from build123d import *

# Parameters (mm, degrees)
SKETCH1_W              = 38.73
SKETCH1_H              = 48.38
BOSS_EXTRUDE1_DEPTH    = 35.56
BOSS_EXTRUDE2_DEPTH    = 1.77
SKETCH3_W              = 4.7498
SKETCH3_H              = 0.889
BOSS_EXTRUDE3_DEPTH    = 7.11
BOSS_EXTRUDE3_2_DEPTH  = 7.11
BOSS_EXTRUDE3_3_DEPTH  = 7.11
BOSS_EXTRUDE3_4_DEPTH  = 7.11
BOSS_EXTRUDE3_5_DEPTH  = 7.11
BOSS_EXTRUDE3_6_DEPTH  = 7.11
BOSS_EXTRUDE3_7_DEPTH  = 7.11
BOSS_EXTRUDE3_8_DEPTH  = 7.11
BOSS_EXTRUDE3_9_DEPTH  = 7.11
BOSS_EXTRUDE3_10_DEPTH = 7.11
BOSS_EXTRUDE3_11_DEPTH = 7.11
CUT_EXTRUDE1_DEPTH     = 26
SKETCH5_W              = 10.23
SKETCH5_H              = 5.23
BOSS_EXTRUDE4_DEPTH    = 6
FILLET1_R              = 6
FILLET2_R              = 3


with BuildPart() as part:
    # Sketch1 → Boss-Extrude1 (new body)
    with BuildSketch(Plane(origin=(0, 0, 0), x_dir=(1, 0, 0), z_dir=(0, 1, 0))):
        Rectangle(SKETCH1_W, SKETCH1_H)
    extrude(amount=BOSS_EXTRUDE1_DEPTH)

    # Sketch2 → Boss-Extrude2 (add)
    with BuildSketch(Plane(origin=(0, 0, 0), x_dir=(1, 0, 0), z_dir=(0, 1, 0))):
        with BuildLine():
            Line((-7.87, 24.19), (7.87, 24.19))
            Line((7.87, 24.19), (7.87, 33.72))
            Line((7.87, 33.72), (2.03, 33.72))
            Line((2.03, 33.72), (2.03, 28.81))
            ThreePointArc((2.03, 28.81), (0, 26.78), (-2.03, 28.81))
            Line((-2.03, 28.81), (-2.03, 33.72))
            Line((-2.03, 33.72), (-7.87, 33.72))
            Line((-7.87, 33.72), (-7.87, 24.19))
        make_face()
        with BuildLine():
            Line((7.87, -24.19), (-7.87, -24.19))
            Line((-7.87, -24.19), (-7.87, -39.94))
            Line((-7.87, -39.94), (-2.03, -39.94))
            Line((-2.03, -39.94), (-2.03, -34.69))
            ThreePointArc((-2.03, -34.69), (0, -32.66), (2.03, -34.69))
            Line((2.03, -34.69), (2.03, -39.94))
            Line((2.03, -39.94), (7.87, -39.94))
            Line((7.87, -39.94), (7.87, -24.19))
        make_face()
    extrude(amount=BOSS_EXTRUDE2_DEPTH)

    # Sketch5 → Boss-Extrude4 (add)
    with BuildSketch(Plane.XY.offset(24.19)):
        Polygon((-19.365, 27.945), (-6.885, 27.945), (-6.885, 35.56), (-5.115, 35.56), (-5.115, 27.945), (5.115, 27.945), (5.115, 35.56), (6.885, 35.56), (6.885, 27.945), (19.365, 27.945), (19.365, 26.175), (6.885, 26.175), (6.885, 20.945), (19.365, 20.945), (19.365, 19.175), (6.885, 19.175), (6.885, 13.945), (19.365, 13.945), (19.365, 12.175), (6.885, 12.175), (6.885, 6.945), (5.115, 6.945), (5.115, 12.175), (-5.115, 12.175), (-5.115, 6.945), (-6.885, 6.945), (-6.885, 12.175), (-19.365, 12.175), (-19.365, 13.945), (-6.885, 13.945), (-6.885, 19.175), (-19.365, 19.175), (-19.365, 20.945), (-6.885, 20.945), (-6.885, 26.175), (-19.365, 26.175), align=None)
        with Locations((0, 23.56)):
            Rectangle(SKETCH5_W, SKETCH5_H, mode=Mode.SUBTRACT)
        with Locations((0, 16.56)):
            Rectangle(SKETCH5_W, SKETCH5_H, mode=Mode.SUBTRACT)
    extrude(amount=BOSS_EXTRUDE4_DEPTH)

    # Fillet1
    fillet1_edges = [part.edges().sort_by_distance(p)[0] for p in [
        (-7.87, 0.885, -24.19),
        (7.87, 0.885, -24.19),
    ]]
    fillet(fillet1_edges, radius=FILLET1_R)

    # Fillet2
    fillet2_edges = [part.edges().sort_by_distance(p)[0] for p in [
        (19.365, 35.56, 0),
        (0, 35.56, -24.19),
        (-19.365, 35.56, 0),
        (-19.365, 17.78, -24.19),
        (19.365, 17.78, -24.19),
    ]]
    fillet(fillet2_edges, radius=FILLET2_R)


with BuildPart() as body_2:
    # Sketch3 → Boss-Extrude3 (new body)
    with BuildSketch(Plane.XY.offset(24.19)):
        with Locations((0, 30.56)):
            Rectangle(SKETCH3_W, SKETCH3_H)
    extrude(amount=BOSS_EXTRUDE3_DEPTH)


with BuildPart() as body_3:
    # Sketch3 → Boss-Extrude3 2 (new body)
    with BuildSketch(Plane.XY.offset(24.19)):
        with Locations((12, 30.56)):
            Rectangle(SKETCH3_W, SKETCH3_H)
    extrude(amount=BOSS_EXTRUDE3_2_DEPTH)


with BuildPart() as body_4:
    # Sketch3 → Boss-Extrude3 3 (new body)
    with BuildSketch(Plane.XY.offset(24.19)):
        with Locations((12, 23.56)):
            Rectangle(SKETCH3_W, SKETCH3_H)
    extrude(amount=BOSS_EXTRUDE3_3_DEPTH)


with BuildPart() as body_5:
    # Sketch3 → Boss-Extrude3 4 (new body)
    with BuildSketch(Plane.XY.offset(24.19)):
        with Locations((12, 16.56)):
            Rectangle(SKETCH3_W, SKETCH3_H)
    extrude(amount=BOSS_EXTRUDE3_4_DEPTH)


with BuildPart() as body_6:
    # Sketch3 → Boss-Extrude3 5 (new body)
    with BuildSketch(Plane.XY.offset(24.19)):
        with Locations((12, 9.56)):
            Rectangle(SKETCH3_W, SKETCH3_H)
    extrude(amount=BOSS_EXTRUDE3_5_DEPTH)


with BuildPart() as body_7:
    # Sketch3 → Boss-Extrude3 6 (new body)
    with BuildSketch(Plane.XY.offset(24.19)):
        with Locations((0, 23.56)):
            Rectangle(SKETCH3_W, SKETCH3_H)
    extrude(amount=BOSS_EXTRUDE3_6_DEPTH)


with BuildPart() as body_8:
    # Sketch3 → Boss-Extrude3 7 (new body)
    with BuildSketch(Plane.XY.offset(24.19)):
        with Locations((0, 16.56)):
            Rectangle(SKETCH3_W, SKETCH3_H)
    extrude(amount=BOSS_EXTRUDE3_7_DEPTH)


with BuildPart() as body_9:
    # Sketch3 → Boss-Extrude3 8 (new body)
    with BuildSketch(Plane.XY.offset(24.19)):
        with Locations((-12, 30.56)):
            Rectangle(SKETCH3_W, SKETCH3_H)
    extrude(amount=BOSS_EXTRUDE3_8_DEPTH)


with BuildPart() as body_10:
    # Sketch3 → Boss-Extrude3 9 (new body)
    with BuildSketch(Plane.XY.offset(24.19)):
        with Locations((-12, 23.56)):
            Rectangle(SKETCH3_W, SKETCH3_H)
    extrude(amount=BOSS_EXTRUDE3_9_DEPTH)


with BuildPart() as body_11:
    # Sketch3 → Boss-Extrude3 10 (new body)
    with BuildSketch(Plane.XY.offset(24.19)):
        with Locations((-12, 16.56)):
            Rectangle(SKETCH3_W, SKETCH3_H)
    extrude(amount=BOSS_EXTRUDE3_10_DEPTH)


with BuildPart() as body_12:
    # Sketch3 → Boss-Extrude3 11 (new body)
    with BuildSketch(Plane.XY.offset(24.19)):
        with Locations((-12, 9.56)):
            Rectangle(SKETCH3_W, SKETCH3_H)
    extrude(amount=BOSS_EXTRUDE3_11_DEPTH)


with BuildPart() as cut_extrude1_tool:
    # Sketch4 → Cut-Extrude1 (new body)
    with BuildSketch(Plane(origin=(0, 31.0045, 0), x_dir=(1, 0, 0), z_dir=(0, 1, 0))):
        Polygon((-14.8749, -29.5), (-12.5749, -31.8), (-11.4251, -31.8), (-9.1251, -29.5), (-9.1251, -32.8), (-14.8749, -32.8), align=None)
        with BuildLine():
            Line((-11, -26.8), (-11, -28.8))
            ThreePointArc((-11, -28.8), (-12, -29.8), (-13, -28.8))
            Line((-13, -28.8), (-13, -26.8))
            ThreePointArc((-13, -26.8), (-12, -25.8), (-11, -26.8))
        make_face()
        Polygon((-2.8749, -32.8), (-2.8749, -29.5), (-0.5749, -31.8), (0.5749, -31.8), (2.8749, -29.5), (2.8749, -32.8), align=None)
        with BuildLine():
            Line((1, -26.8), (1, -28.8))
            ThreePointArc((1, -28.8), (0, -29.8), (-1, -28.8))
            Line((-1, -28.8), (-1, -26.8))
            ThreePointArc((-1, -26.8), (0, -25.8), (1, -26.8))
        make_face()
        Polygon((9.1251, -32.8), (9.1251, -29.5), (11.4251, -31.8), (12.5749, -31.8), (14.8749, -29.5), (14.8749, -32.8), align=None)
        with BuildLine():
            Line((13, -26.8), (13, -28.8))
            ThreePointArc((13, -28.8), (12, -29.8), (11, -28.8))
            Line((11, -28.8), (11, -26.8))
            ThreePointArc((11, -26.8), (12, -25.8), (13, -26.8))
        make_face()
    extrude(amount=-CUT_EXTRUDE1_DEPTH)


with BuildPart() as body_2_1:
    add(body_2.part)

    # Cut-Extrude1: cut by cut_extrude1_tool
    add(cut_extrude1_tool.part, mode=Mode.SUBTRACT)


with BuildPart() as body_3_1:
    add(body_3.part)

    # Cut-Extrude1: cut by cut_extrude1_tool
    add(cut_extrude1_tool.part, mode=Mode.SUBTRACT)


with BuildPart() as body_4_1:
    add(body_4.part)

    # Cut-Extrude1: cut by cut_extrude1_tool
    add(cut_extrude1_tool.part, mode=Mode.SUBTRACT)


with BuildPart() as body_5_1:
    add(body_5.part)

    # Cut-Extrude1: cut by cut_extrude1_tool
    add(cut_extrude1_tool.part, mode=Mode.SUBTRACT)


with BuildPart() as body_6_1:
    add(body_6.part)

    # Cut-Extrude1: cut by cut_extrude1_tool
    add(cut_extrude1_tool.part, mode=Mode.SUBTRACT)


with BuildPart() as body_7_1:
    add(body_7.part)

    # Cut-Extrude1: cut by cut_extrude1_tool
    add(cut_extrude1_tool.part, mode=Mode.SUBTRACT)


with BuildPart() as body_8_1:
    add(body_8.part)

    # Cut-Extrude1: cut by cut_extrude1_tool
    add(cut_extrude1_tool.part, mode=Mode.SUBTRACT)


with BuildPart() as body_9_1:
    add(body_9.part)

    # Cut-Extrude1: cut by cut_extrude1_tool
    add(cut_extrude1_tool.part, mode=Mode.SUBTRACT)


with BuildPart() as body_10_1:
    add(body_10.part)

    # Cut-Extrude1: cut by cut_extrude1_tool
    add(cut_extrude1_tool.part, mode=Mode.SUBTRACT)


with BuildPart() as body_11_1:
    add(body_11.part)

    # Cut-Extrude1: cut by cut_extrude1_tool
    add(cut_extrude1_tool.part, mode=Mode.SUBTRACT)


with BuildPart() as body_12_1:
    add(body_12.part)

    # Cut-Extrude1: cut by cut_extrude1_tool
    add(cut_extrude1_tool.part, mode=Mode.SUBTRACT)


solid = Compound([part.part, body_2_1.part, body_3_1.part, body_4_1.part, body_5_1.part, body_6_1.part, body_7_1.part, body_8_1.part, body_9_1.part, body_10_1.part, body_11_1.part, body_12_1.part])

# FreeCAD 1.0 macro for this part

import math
import FreeCAD as App
import Part
import Sketcher

V = App.Vector
Q = App.Units.Quantity


def edges_at(feature, points):
    """Names of the edges that pass closest to the given points."""
    edges = feature.Shape.Edges
    near = lambda p: min(range(len(edges)), key=lambda i: edges[i].distToShape(Part.Vertex(*p))[0])
    return sorted({f"Edge{near(p) + 1}" for p in points})


def add_polygon(sketch, points):
    """Adds a closed chain of lines whose ends are joined by coincident constraints."""
    first, n = sketch.GeometryCount, len(points)
    for a, b in zip(points, points[1:] + points[:1]):
        sketch.addGeometry(Part.LineSegment(App.Vector(*a, 0), App.Vector(*b, 0)), False)
    for i in range(n):
        sketch.addConstraint(Sketcher.Constraint("Coincident", first + i, 2, first + (i + 1) % n, 1))

doc = App.newDocument("Part")
params = doc.addObject("Spreadsheet::Sheet", "Params")
for row, (alias, value) in enumerate([
    ("sketch1_width", "38.73 mm"),
    ("sketch1_height", "48.38 mm"),
    ("pad1_length", "35.56 mm"),
    ("sketch2_radius", "2.03 mm"),
    ("sketch2_width", "15.74 mm"),
    ("sketch2_height", "9.53 mm"),
    ("sketch2_height2", "4.91 mm"),
    ("sketch2_height3", "15.75 mm"),
    ("pad2_length", "1.77 mm"),
    ("sketch3_width", "12.48 mm"),
    ("sketch3_width2", "1.77 mm"),
    ("pad3_length", "6 mm"),
    ("fillet_radius", "6 mm"),
    ("fillet2_radius", "3 mm"),
    ("pad4_length", "7.11 mm"),
    ("pad5_length", "7.11 mm"),
    ("pad6_length", "7.11 mm"),
    ("pad7_length", "7.11 mm"),
    ("pad8_length", "7.11 mm"),
    ("pad9_length", "7.11 mm"),
    ("pad10_length", "7.11 mm"),
    ("pad11_length", "7.11 mm"),
    ("pad12_length", "7.11 mm"),
    ("pad13_length", "7.11 mm"),
    ("pad14_length", "7.11 mm"),
    ("sketch15_radius", "1 mm"),
    ("sketch15_height", "2 mm"),
    ("sketch15_height2", "3.3 mm"),
    ("pad15_length", "26 mm"),
], start=1):
    params.set(f"A{row}", alias)
    params.set(f"B{row}", "=" + value)
    params.setAlias(f"B{row}", alias)

body = doc.addObject("PartDesign::Body", "Body")

# Sketch on XZ plane
sketch1 = body.newObject("Sketcher::SketchObject", "Sketch")
sketch1.AttachmentSupport = (doc.getObject("XZ_Plane"), [""])
sketch1.MapMode = "FlatFace"
add_polygon(sketch1, [(-19.365, -24.19), (-19.365, 24.19), (19.365, 24.19), (19.365, -24.19)])  # lines 0-3
sketch1.addConstraint(Sketcher.Constraint("Vertical", 0))
sketch1.addConstraint(Sketcher.Constraint("Horizontal", 1))
sketch1.addConstraint(Sketcher.Constraint("Vertical", 2))
sketch1.addConstraint(Sketcher.Constraint("Horizontal", 3))
sketch1.addConstraint(Sketcher.Constraint("Symmetric", 0, 2, 2, 2, -1, 1))
sketch1.addConstraint(Sketcher.Constraint("DistanceX", 1, 1, 1, 2, Q("38.73 mm")))
sketch1.addConstraint(Sketcher.Constraint("DistanceY", 0, 1, 0, 2, Q("48.38 mm")))
sketch1.setExpression("Constraints[9]", "Params.sketch1_width")
sketch1.setExpression("Constraints[10]", "Params.sketch1_height")
pad1 = body.newObject("PartDesign::Pad", "Pad")
pad1.Profile = sketch1
pad1.setExpression("Length", "Params.pad1_length")
pad1.Reversed = True

# Sketch on XZ plane
sketch2 = body.newObject("Sketcher::SketchObject", "Sketch001")
sketch2.AttachmentSupport = (doc.getObject("XZ_Plane"), [""])
sketch2.MapMode = "FlatFace"
sketch2.addGeometry(Part.LineSegment(V(-7.87, -24.19, 0), V(7.87, -24.19, 0)), False)
sketch2.addGeometry(Part.LineSegment(V(7.87, -24.19, 0), V(7.87, -33.72, 0)), False)
sketch2.addGeometry(Part.LineSegment(V(7.87, -33.72, 0), V(2.03, -33.72, 0)), False)
sketch2.addGeometry(Part.LineSegment(V(2.03, -33.72, 0), V(2.03, -28.81, 0)), False)
sketch2.addGeometry(Part.ArcOfCircle(Part.Circle(V(0, -28.81, 0), V(0, 0, 1), 2.03), math.radians(0), math.radians(180)), False)
sketch2.addGeometry(Part.LineSegment(V(-2.03, -28.81, 0), V(-2.03, -33.72, 0)), False)
sketch2.addGeometry(Part.LineSegment(V(-2.03, -33.72, 0), V(-7.87, -33.72, 0)), False)
sketch2.addGeometry(Part.LineSegment(V(-7.87, -33.72, 0), V(-7.87, -24.19, 0)), False)
sketch2.addGeometry(Part.LineSegment(V(7.87, 24.19, 0), V(-7.87, 24.19, 0)), False)
sketch2.addGeometry(Part.LineSegment(V(-7.87, 24.19, 0), V(-7.87, 39.94, 0)), False)
sketch2.addGeometry(Part.LineSegment(V(-7.87, 39.94, 0), V(-2.03, 39.94, 0)), False)
sketch2.addGeometry(Part.LineSegment(V(-2.03, 39.94, 0), V(-2.03, 34.69, 0)), False)
sketch2.addGeometry(Part.ArcOfCircle(Part.Circle(V(0, 34.69, 0), V(0, 0, 1), 2.03), math.radians(180), math.radians(360)), False)
sketch2.addGeometry(Part.LineSegment(V(2.03, 34.69, 0), V(2.03, 39.94, 0)), False)
sketch2.addGeometry(Part.LineSegment(V(2.03, 39.94, 0), V(7.87, 39.94, 0)), False)
sketch2.addGeometry(Part.LineSegment(V(7.87, 39.94, 0), V(7.87, 24.19, 0)), False)
sketch2.addConstraint(Sketcher.Constraint("Coincident", 0, 2, 1, 1))
sketch2.addConstraint(Sketcher.Constraint("Coincident", 1, 2, 2, 1))
sketch2.addConstraint(Sketcher.Constraint("Coincident", 2, 2, 3, 1))
sketch2.addConstraint(Sketcher.Constraint("Tangent", 3, 2, 4, 1))
sketch2.addConstraint(Sketcher.Constraint("Tangent", 4, 2, 5, 1))
sketch2.addConstraint(Sketcher.Constraint("Coincident", 5, 2, 6, 1))
sketch2.addConstraint(Sketcher.Constraint("Coincident", 6, 2, 7, 1))
sketch2.addConstraint(Sketcher.Constraint("Coincident", 7, 2, 0, 1))
sketch2.addConstraint(Sketcher.Constraint("Coincident", 8, 2, 9, 1))
sketch2.addConstraint(Sketcher.Constraint("Coincident", 9, 2, 10, 1))
sketch2.addConstraint(Sketcher.Constraint("Coincident", 10, 2, 11, 1))
sketch2.addConstraint(Sketcher.Constraint("Tangent", 11, 2, 12, 1))
sketch2.addConstraint(Sketcher.Constraint("Tangent", 12, 2, 13, 1))
sketch2.addConstraint(Sketcher.Constraint("Coincident", 13, 2, 14, 1))
sketch2.addConstraint(Sketcher.Constraint("Coincident", 14, 2, 15, 1))
sketch2.addConstraint(Sketcher.Constraint("Coincident", 15, 2, 8, 1))
sketch2.addConstraint(Sketcher.Constraint("Horizontal", 0))
sketch2.addConstraint(Sketcher.Constraint("Vertical", 1))
sketch2.addConstraint(Sketcher.Constraint("Horizontal", 2))
sketch2.addConstraint(Sketcher.Constraint("Vertical", 3))
sketch2.addConstraint(Sketcher.Constraint("Vertical", 5))
sketch2.addConstraint(Sketcher.Constraint("Horizontal", 6))
sketch2.addConstraint(Sketcher.Constraint("Vertical", 7))
sketch2.addConstraint(Sketcher.Constraint("Horizontal", 8))
sketch2.addConstraint(Sketcher.Constraint("Vertical", 9))
sketch2.addConstraint(Sketcher.Constraint("Horizontal", 10))
sketch2.addConstraint(Sketcher.Constraint("Vertical", 11))
sketch2.addConstraint(Sketcher.Constraint("Vertical", 13))
sketch2.addConstraint(Sketcher.Constraint("Horizontal", 14))
sketch2.addConstraint(Sketcher.Constraint("Vertical", 15))
sketch2.addConstraint(Sketcher.Constraint("Equal", 4, 12))
sketch2.addConstraint(Sketcher.Constraint("Symmetric", 0, 2, 8, 2, -1, 1))
sketch2.addConstraint(Sketcher.Constraint("Symmetric", 2, 2, 5, 2, -2))
sketch2.addConstraint(Sketcher.Constraint("Symmetric", 10, 2, 13, 2, -2))
sketch2.addConstraint(Sketcher.Constraint("Vertical", 7, 2, 8, 2))
sketch2.addConstraint(Sketcher.Constraint("Vertical", 1, 2, 14, 2))
sketch2.addConstraint(Sketcher.Constraint("Radius", 4, Q("2.03 mm")))
sketch2.addConstraint(Sketcher.Constraint("DistanceY", 4, 2, 8, 2, Q("53 mm")))
sketch2.addConstraint(Sketcher.Constraint("DistanceX", 0, 1, 0, 2, Q("15.74 mm")))
sketch2.addConstraint(Sketcher.Constraint("DistanceY", 1, 2, 1, 1, Q("9.53 mm")))
sketch2.addConstraint(Sketcher.Constraint("DistanceY", 3, 1, 3, 2, Q("4.91 mm")))
sketch2.addConstraint(Sketcher.Constraint("DistanceY", 9, 1, 9, 2, Q("15.75 mm")))
sketch2.addConstraint(Sketcher.Constraint("DistanceY", 11, 2, 11, 1, Q("5.25 mm")))
sketch2.setExpression("Constraints[36]", "Params.sketch2_radius")
sketch2.setExpression("Constraints[38]", "Params.sketch2_width")
sketch2.setExpression("Constraints[39]", "Params.sketch2_height")
sketch2.setExpression("Constraints[40]", "Params.sketch2_height2")
sketch2.setExpression("Constraints[41]", "Params.sketch2_height3")
pad2 = body.newObject("PartDesign::Pad", "Pad001")
pad2.Profile = sketch2
pad2.setExpression("Length", "Params.pad2_length")
pad2.Reversed = True

# Sketch on XY plane
sketch3 = body.newObject("Sketcher::SketchObject", "Sketch002")
sketch3.AttachmentSupport = (doc.getObject("XY_Plane"), [""])
sketch3.MapMode = "FlatFace"
sketch3.AttachmentOffset = App.Placement(V(0, 0, 24.19), App.Rotation())
add_polygon(sketch3, [(-6.885, 27.945), (-19.365, 27.945), (-19.365, 26.175), (-6.885, 26.175), (-6.885, 20.945), (-19.365, 20.945), (-19.365, 19.175), (-6.885, 19.175), (-6.885, 13.945), (-19.365, 13.945), (-19.365, 12.175), (-6.885, 12.175), (-6.885, 6.945), (-5.115, 6.945), (-5.115, 12.175), (5.115, 12.175), (5.115, 6.945), (6.885, 6.945), (6.885, 12.175), (19.365, 12.175), (19.365, 13.945), (6.885, 13.945), (6.885, 19.175), (19.365, 19.175), (19.365, 20.945), (6.885, 20.945), (6.885, 26.175), (19.365, 26.175), (19.365, 27.945), (6.885, 27.945), (6.885, 35.56), (5.115, 35.56), (5.115, 27.945), (-5.115, 27.945), (-5.115, 35.56), (-6.885, 35.56)])  # lines 0-35
add_polygon(sketch3, [(-5.115, 13.945), (-5.115, 19.175), (5.115, 19.175), (5.115, 13.945)])  # lines 36-39
add_polygon(sketch3, [(-5.115, 20.945), (-5.115, 26.175), (5.115, 26.175), (5.115, 20.945)])  # lines 40-43
sketch3.addConstraint(Sketcher.Constraint("Horizontal", 0))
sketch3.addConstraint(Sketcher.Constraint("Vertical", 1))
sketch3.addConstraint(Sketcher.Constraint("Horizontal", 2))
sketch3.addConstraint(Sketcher.Constraint("Vertical", 3))
sketch3.addConstraint(Sketcher.Constraint("Horizontal", 4))
sketch3.addConstraint(Sketcher.Constraint("Vertical", 5))
sketch3.addConstraint(Sketcher.Constraint("Horizontal", 6))
sketch3.addConstraint(Sketcher.Constraint("Vertical", 7))
sketch3.addConstraint(Sketcher.Constraint("Horizontal", 8))
sketch3.addConstraint(Sketcher.Constraint("Vertical", 9))
sketch3.addConstraint(Sketcher.Constraint("Horizontal", 10))
sketch3.addConstraint(Sketcher.Constraint("Vertical", 11))
sketch3.addConstraint(Sketcher.Constraint("Horizontal", 12))
sketch3.addConstraint(Sketcher.Constraint("Vertical", 13))
sketch3.addConstraint(Sketcher.Constraint("Horizontal", 14))
sketch3.addConstraint(Sketcher.Constraint("Vertical", 15))
sketch3.addConstraint(Sketcher.Constraint("Horizontal", 16))
sketch3.addConstraint(Sketcher.Constraint("Vertical", 17))
sketch3.addConstraint(Sketcher.Constraint("Horizontal", 18))
sketch3.addConstraint(Sketcher.Constraint("Vertical", 19))
sketch3.addConstraint(Sketcher.Constraint("Horizontal", 20))
sketch3.addConstraint(Sketcher.Constraint("Vertical", 21))
sketch3.addConstraint(Sketcher.Constraint("Horizontal", 22))
sketch3.addConstraint(Sketcher.Constraint("Vertical", 23))
sketch3.addConstraint(Sketcher.Constraint("Horizontal", 24))
sketch3.addConstraint(Sketcher.Constraint("Vertical", 25))
sketch3.addConstraint(Sketcher.Constraint("Horizontal", 26))
sketch3.addConstraint(Sketcher.Constraint("Vertical", 27))
sketch3.addConstraint(Sketcher.Constraint("Horizontal", 28))
sketch3.addConstraint(Sketcher.Constraint("Vertical", 29))
sketch3.addConstraint(Sketcher.Constraint("Horizontal", 30))
sketch3.addConstraint(Sketcher.Constraint("Vertical", 31))
sketch3.addConstraint(Sketcher.Constraint("Horizontal", 32))
sketch3.addConstraint(Sketcher.Constraint("Vertical", 33))
sketch3.addConstraint(Sketcher.Constraint("Horizontal", 34))
sketch3.addConstraint(Sketcher.Constraint("Vertical", 35))
sketch3.addConstraint(Sketcher.Constraint("Vertical", 36))
sketch3.addConstraint(Sketcher.Constraint("Horizontal", 37))
sketch3.addConstraint(Sketcher.Constraint("Vertical", 38))
sketch3.addConstraint(Sketcher.Constraint("Horizontal", 39))
sketch3.addConstraint(Sketcher.Constraint("Vertical", 40))
sketch3.addConstraint(Sketcher.Constraint("Horizontal", 41))
sketch3.addConstraint(Sketcher.Constraint("Vertical", 42))
sketch3.addConstraint(Sketcher.Constraint("Horizontal", 43))
sketch3.addConstraint(Sketcher.Constraint("Symmetric", 12, 2, 15, 2, -2))
sketch3.addConstraint(Sketcher.Constraint("Symmetric", 10, 2, 17, 2, -2))
sketch3.addConstraint(Sketcher.Constraint("Symmetric", 8, 2, 19, 2, -2))
sketch3.addConstraint(Sketcher.Constraint("Symmetric", 6, 2, 21, 2, -2))
sketch3.addConstraint(Sketcher.Constraint("Symmetric", 4, 2, 23, 2, -2))
sketch3.addConstraint(Sketcher.Constraint("Symmetric", 2, 2, 25, 2, -2))
sketch3.addConstraint(Sketcher.Constraint("Symmetric", 0, 2, 27, 2, -2))
sketch3.addConstraint(Sketcher.Constraint("Symmetric", 30, 2, 33, 2, -2))
sketch3.addConstraint(Sketcher.Constraint("Horizontal", 10, 2, 13, 2))
sketch3.addConstraint(Sketcher.Constraint("Horizontal", 28, 2, 31, 2))
sketch3.addConstraint(Sketcher.Constraint("Horizontal", 22, 2, 36, 2))
sketch3.addConstraint(Sketcher.Constraint("Horizontal", 20, 2, 38, 2))
sketch3.addConstraint(Sketcher.Constraint("Horizontal", 26, 2, 40, 2))
sketch3.addConstraint(Sketcher.Constraint("Horizontal", 24, 2, 42, 2))
sketch3.addConstraint(Sketcher.Constraint("Vertical", 1, 2, 4, 2))
sketch3.addConstraint(Sketcher.Constraint("Vertical", 3, 2, 6, 2))
sketch3.addConstraint(Sketcher.Constraint("Vertical", 5, 2, 8, 2))
sketch3.addConstraint(Sketcher.Constraint("Vertical", 7, 2, 10, 2))
sketch3.addConstraint(Sketcher.Constraint("Vertical", 25, 2, 28, 2))
sketch3.addConstraint(Sketcher.Constraint("Vertical", 15, 2, 30, 2))
sketch3.addConstraint(Sketcher.Constraint("Vertical", 11, 2, 34, 2))
sketch3.addConstraint(Sketcher.Constraint("Vertical", 33, 2, 36, 2))
sketch3.addConstraint(Sketcher.Constraint("Vertical", 31, 2, 37, 2))
sketch3.addConstraint(Sketcher.Constraint("Vertical", 39, 2, 40, 2))
sketch3.addConstraint(Sketcher.Constraint("Vertical", 38, 2, 41, 2))
sketch3.addConstraint(Sketcher.Constraint("Equal", 34, 1))
sketch3.addConstraint(Sketcher.Constraint("Equal", 1, 5))
sketch3.addConstraint(Sketcher.Constraint("Equal", 3, 7))
sketch3.addConstraint(Sketcher.Constraint("Equal", 5, 9))
sketch3.addConstraint(Sketcher.Constraint("Equal", 7, 11))
sketch3.addConstraint(Sketcher.Constraint("DistanceY", 3, 2, 0, 2, Q("7 mm")))
sketch3.addConstraint(Sketcher.Constraint("DistanceX", 10, 2, 14, 2, Q("12 mm")))
sketch3.addConstraint(Sketcher.Constraint("DistanceX", 0, 2, 0, 1, Q("12.48 mm")))
sketch3.addConstraint(Sketcher.Constraint("DistanceX", 12, 1, 12, 2, Q("1.77 mm")))
sketch3.addConstraint(Sketcher.Constraint("DistanceY", 29, 1, 29, 2, Q("7.615 mm")))
sketch3.addConstraint(Sketcher.Constraint("DistanceY", -1, 1, 29, 2, Q("35.56 mm")))
sketch3.setExpression("Constraints[120]", "Params.sketch3_width")
sketch3.setExpression("Constraints[121]", "Params.sketch3_width2")
pad3 = body.newObject("PartDesign::Pad", "Pad002")
pad3.Profile = sketch3
pad3.setExpression("Length", "Params.pad3_length")
doc.recompute()

fillet = body.newObject("PartDesign::Fillet", "Fillet")
fillet.Base = (pad3, edges_at(pad3, [(-7.87, 0.885, -24.19), (7.87, 0.885, -24.19)]))
fillet.setExpression("Radius", "Params.fillet_radius")
doc.recompute()

fillet2 = body.newObject("PartDesign::Fillet", "Fillet001")
fillet2.Base = (fillet, edges_at(fillet, [
    (19.365, 35.56, 0),
    (0, 35.56, -24.19),
    (-19.365, 35.56, 0),
    (-19.365, 17.78, -24.19),
    (19.365, 17.78, -24.19),
]))
fillet2.setExpression("Radius", "Params.fillet2_radius")
body2 = doc.addObject("PartDesign::Body", "Body001")

# Sketch on XY plane
sketch4 = body2.newObject("Sketcher::SketchObject", "Sketch003")
sketch4.AttachmentSupport = (doc.getObject("XY_Plane001"), [""])
sketch4.MapMode = "FlatFace"
sketch4.AttachmentOffset = App.Placement(V(0, 0, 24.19), App.Rotation())
add_polygon(sketch4, [(-2.3749, 31.0045), (-2.3749, 30.1155), (2.3749, 30.1155), (2.3749, 31.0045)])  # lines 0-3
sketch4.addConstraint(Sketcher.Constraint("Vertical", 0))
sketch4.addConstraint(Sketcher.Constraint("Horizontal", 1))
sketch4.addConstraint(Sketcher.Constraint("Vertical", 2))
sketch4.addConstraint(Sketcher.Constraint("Horizontal", 3))
sketch4.addConstraint(Sketcher.Constraint("DistanceY", 0, 2, 0, 1, Q("0.889 mm")))
sketch4.addConstraint(Sketcher.Constraint("DistanceX", 1, 1, 1, 2, Q("4.7498 mm")))
sketch4.addConstraint(Sketcher.Constraint("DistanceX", 0, 2, -1, 1, Q("2.3749 mm")))
sketch4.addConstraint(Sketcher.Constraint("DistanceY", -1, 1, 0, 2, Q("30.1155 mm")))
pad4 = body2.newObject("PartDesign::Pad", "Pad003")
pad4.Profile = sketch4
pad4.setExpression("Length", "Params.pad4_length")
body3 = doc.addObject("PartDesign::Body", "Body002")

# Sketch on XY plane
sketch5 = body3.newObject("Sketcher::SketchObject", "Sketch004")
sketch5.AttachmentSupport = (doc.getObject("XY_Plane002"), [""])
sketch5.MapMode = "FlatFace"
sketch5.AttachmentOffset = App.Placement(V(0, 0, 24.19), App.Rotation())
add_polygon(sketch5, [(9.6251, 31.0045), (9.6251, 30.1155), (14.3749, 30.1155), (14.3749, 31.0045)])  # lines 0-3
sketch5.addConstraint(Sketcher.Constraint("Vertical", 0))
sketch5.addConstraint(Sketcher.Constraint("Horizontal", 1))
sketch5.addConstraint(Sketcher.Constraint("Vertical", 2))
sketch5.addConstraint(Sketcher.Constraint("Horizontal", 3))
sketch5.addConstraint(Sketcher.Constraint("DistanceY", 0, 2, 0, 1, Q("0.889 mm")))
sketch5.addConstraint(Sketcher.Constraint("DistanceX", 1, 1, 1, 2, Q("4.7498 mm")))
sketch5.addConstraint(Sketcher.Constraint("DistanceX", -1, 1, 0, 2, Q("9.6251 mm")))
sketch5.addConstraint(Sketcher.Constraint("DistanceY", -1, 1, 0, 2, Q("30.1155 mm")))
pad5 = body3.newObject("PartDesign::Pad", "Pad004")
pad5.Profile = sketch5
pad5.setExpression("Length", "Params.pad5_length")
body4 = doc.addObject("PartDesign::Body", "Body003")

# Sketch on XY plane
sketch6 = body4.newObject("Sketcher::SketchObject", "Sketch005")
sketch6.AttachmentSupport = (doc.getObject("XY_Plane003"), [""])
sketch6.MapMode = "FlatFace"
sketch6.AttachmentOffset = App.Placement(V(0, 0, 24.19), App.Rotation())
add_polygon(sketch6, [(9.6251, 24.0045), (9.6251, 23.1155), (14.3749, 23.1155), (14.3749, 24.0045)])  # lines 0-3
sketch6.addConstraint(Sketcher.Constraint("Vertical", 0))
sketch6.addConstraint(Sketcher.Constraint("Horizontal", 1))
sketch6.addConstraint(Sketcher.Constraint("Vertical", 2))
sketch6.addConstraint(Sketcher.Constraint("Horizontal", 3))
sketch6.addConstraint(Sketcher.Constraint("DistanceY", 0, 2, 0, 1, Q("0.889 mm")))
sketch6.addConstraint(Sketcher.Constraint("DistanceX", 1, 1, 1, 2, Q("4.7498 mm")))
sketch6.addConstraint(Sketcher.Constraint("DistanceX", -1, 1, 0, 2, Q("9.6251 mm")))
sketch6.addConstraint(Sketcher.Constraint("DistanceY", -1, 1, 0, 2, Q("23.1155 mm")))
pad6 = body4.newObject("PartDesign::Pad", "Pad005")
pad6.Profile = sketch6
pad6.setExpression("Length", "Params.pad6_length")
body5 = doc.addObject("PartDesign::Body", "Body004")

# Sketch on XY plane
sketch7 = body5.newObject("Sketcher::SketchObject", "Sketch006")
sketch7.AttachmentSupport = (doc.getObject("XY_Plane004"), [""])
sketch7.MapMode = "FlatFace"
sketch7.AttachmentOffset = App.Placement(V(0, 0, 24.19), App.Rotation())
add_polygon(sketch7, [(9.6251, 17.0045), (9.6251, 16.1155), (14.3749, 16.1155), (14.3749, 17.0045)])  # lines 0-3
sketch7.addConstraint(Sketcher.Constraint("Vertical", 0))
sketch7.addConstraint(Sketcher.Constraint("Horizontal", 1))
sketch7.addConstraint(Sketcher.Constraint("Vertical", 2))
sketch7.addConstraint(Sketcher.Constraint("Horizontal", 3))
sketch7.addConstraint(Sketcher.Constraint("DistanceY", 0, 2, 0, 1, Q("0.889 mm")))
sketch7.addConstraint(Sketcher.Constraint("DistanceX", 1, 1, 1, 2, Q("4.7498 mm")))
sketch7.addConstraint(Sketcher.Constraint("DistanceX", -1, 1, 0, 2, Q("9.6251 mm")))
sketch7.addConstraint(Sketcher.Constraint("DistanceY", -1, 1, 0, 2, Q("16.1155 mm")))
pad7 = body5.newObject("PartDesign::Pad", "Pad006")
pad7.Profile = sketch7
pad7.setExpression("Length", "Params.pad7_length")
body6 = doc.addObject("PartDesign::Body", "Body005")

# Sketch on XY plane
sketch8 = body6.newObject("Sketcher::SketchObject", "Sketch007")
sketch8.AttachmentSupport = (doc.getObject("XY_Plane005"), [""])
sketch8.MapMode = "FlatFace"
sketch8.AttachmentOffset = App.Placement(V(0, 0, 24.19), App.Rotation())
add_polygon(sketch8, [(9.6251, 10.0045), (9.6251, 9.1155), (14.3749, 9.1155), (14.3749, 10.0045)])  # lines 0-3
sketch8.addConstraint(Sketcher.Constraint("Vertical", 0))
sketch8.addConstraint(Sketcher.Constraint("Horizontal", 1))
sketch8.addConstraint(Sketcher.Constraint("Vertical", 2))
sketch8.addConstraint(Sketcher.Constraint("Horizontal", 3))
sketch8.addConstraint(Sketcher.Constraint("DistanceY", 0, 2, 0, 1, Q("0.889 mm")))
sketch8.addConstraint(Sketcher.Constraint("DistanceX", 1, 1, 1, 2, Q("4.7498 mm")))
sketch8.addConstraint(Sketcher.Constraint("DistanceX", -1, 1, 0, 2, Q("9.6251 mm")))
sketch8.addConstraint(Sketcher.Constraint("DistanceY", -1, 1, 0, 2, Q("9.1155 mm")))
pad8 = body6.newObject("PartDesign::Pad", "Pad007")
pad8.Profile = sketch8
pad8.setExpression("Length", "Params.pad8_length")
body7 = doc.addObject("PartDesign::Body", "Body006")

# Sketch on XY plane
sketch9 = body7.newObject("Sketcher::SketchObject", "Sketch008")
sketch9.AttachmentSupport = (doc.getObject("XY_Plane006"), [""])
sketch9.MapMode = "FlatFace"
sketch9.AttachmentOffset = App.Placement(V(0, 0, 24.19), App.Rotation())
add_polygon(sketch9, [(-2.3749, 24.0045), (-2.3749, 23.1155), (2.3749, 23.1155), (2.3749, 24.0045)])  # lines 0-3
sketch9.addConstraint(Sketcher.Constraint("Vertical", 0))
sketch9.addConstraint(Sketcher.Constraint("Horizontal", 1))
sketch9.addConstraint(Sketcher.Constraint("Vertical", 2))
sketch9.addConstraint(Sketcher.Constraint("Horizontal", 3))
sketch9.addConstraint(Sketcher.Constraint("DistanceY", 0, 2, 0, 1, Q("0.889 mm")))
sketch9.addConstraint(Sketcher.Constraint("DistanceX", 1, 1, 1, 2, Q("4.7498 mm")))
sketch9.addConstraint(Sketcher.Constraint("DistanceX", 0, 2, -1, 1, Q("2.3749 mm")))
sketch9.addConstraint(Sketcher.Constraint("DistanceY", -1, 1, 0, 2, Q("23.1155 mm")))
pad9 = body7.newObject("PartDesign::Pad", "Pad008")
pad9.Profile = sketch9
pad9.setExpression("Length", "Params.pad9_length")
body8 = doc.addObject("PartDesign::Body", "Body007")

# Sketch on XY plane
sketch10 = body8.newObject("Sketcher::SketchObject", "Sketch009")
sketch10.AttachmentSupport = (doc.getObject("XY_Plane007"), [""])
sketch10.MapMode = "FlatFace"
sketch10.AttachmentOffset = App.Placement(V(0, 0, 24.19), App.Rotation())
add_polygon(sketch10, [(-2.3749, 17.0045), (-2.3749, 16.1155), (2.3749, 16.1155), (2.3749, 17.0045)])  # lines 0-3
sketch10.addConstraint(Sketcher.Constraint("Vertical", 0))
sketch10.addConstraint(Sketcher.Constraint("Horizontal", 1))
sketch10.addConstraint(Sketcher.Constraint("Vertical", 2))
sketch10.addConstraint(Sketcher.Constraint("Horizontal", 3))
sketch10.addConstraint(Sketcher.Constraint("DistanceY", 0, 2, 0, 1, Q("0.889 mm")))
sketch10.addConstraint(Sketcher.Constraint("DistanceX", 1, 1, 1, 2, Q("4.7498 mm")))
sketch10.addConstraint(Sketcher.Constraint("DistanceX", 0, 2, -1, 1, Q("2.3749 mm")))
sketch10.addConstraint(Sketcher.Constraint("DistanceY", -1, 1, 0, 2, Q("16.1155 mm")))
pad10 = body8.newObject("PartDesign::Pad", "Pad009")
pad10.Profile = sketch10
pad10.setExpression("Length", "Params.pad10_length")
body9 = doc.addObject("PartDesign::Body", "Body008")

# Sketch on XY plane
sketch11 = body9.newObject("Sketcher::SketchObject", "Sketch010")
sketch11.AttachmentSupport = (doc.getObject("XY_Plane008"), [""])
sketch11.MapMode = "FlatFace"
sketch11.AttachmentOffset = App.Placement(V(0, 0, 24.19), App.Rotation())
add_polygon(sketch11, [(-14.3749, 31.0045), (-14.3749, 30.1155), (-9.6251, 30.1155), (-9.6251, 31.0045)])  # lines 0-3
sketch11.addConstraint(Sketcher.Constraint("Vertical", 0))
sketch11.addConstraint(Sketcher.Constraint("Horizontal", 1))
sketch11.addConstraint(Sketcher.Constraint("Vertical", 2))
sketch11.addConstraint(Sketcher.Constraint("Horizontal", 3))
sketch11.addConstraint(Sketcher.Constraint("DistanceY", 0, 2, 0, 1, Q("0.889 mm")))
sketch11.addConstraint(Sketcher.Constraint("DistanceX", 1, 1, 1, 2, Q("4.7498 mm")))
sketch11.addConstraint(Sketcher.Constraint("DistanceX", 0, 2, -1, 1, Q("14.3749 mm")))
sketch11.addConstraint(Sketcher.Constraint("DistanceY", -1, 1, 0, 2, Q("30.1155 mm")))
pad11 = body9.newObject("PartDesign::Pad", "Pad010")
pad11.Profile = sketch11
pad11.setExpression("Length", "Params.pad11_length")
body10 = doc.addObject("PartDesign::Body", "Body009")

# Sketch on XY plane
sketch12 = body10.newObject("Sketcher::SketchObject", "Sketch011")
sketch12.AttachmentSupport = (doc.getObject("XY_Plane009"), [""])
sketch12.MapMode = "FlatFace"
sketch12.AttachmentOffset = App.Placement(V(0, 0, 24.19), App.Rotation())
add_polygon(sketch12, [(-14.3749, 24.0045), (-14.3749, 23.1155), (-9.6251, 23.1155), (-9.6251, 24.0045)])  # lines 0-3
sketch12.addConstraint(Sketcher.Constraint("Vertical", 0))
sketch12.addConstraint(Sketcher.Constraint("Horizontal", 1))
sketch12.addConstraint(Sketcher.Constraint("Vertical", 2))
sketch12.addConstraint(Sketcher.Constraint("Horizontal", 3))
sketch12.addConstraint(Sketcher.Constraint("DistanceY", 0, 2, 0, 1, Q("0.889 mm")))
sketch12.addConstraint(Sketcher.Constraint("DistanceX", 1, 1, 1, 2, Q("4.7498 mm")))
sketch12.addConstraint(Sketcher.Constraint("DistanceX", 0, 2, -1, 1, Q("14.3749 mm")))
sketch12.addConstraint(Sketcher.Constraint("DistanceY", -1, 1, 0, 2, Q("23.1155 mm")))
pad12 = body10.newObject("PartDesign::Pad", "Pad011")
pad12.Profile = sketch12
pad12.setExpression("Length", "Params.pad12_length")
body11 = doc.addObject("PartDesign::Body", "Body010")

# Sketch on XY plane
sketch13 = body11.newObject("Sketcher::SketchObject", "Sketch012")
sketch13.AttachmentSupport = (doc.getObject("XY_Plane010"), [""])
sketch13.MapMode = "FlatFace"
sketch13.AttachmentOffset = App.Placement(V(0, 0, 24.19), App.Rotation())
add_polygon(sketch13, [(-14.3749, 17.0045), (-14.3749, 16.1155), (-9.6251, 16.1155), (-9.6251, 17.0045)])  # lines 0-3
sketch13.addConstraint(Sketcher.Constraint("Vertical", 0))
sketch13.addConstraint(Sketcher.Constraint("Horizontal", 1))
sketch13.addConstraint(Sketcher.Constraint("Vertical", 2))
sketch13.addConstraint(Sketcher.Constraint("Horizontal", 3))
sketch13.addConstraint(Sketcher.Constraint("DistanceY", 0, 2, 0, 1, Q("0.889 mm")))
sketch13.addConstraint(Sketcher.Constraint("DistanceX", 1, 1, 1, 2, Q("4.7498 mm")))
sketch13.addConstraint(Sketcher.Constraint("DistanceX", 0, 2, -1, 1, Q("14.3749 mm")))
sketch13.addConstraint(Sketcher.Constraint("DistanceY", -1, 1, 0, 2, Q("16.1155 mm")))
pad13 = body11.newObject("PartDesign::Pad", "Pad012")
pad13.Profile = sketch13
pad13.setExpression("Length", "Params.pad13_length")
body12 = doc.addObject("PartDesign::Body", "Body011")

# Sketch on XY plane
sketch14 = body12.newObject("Sketcher::SketchObject", "Sketch013")
sketch14.AttachmentSupport = (doc.getObject("XY_Plane011"), [""])
sketch14.MapMode = "FlatFace"
sketch14.AttachmentOffset = App.Placement(V(0, 0, 24.19), App.Rotation())
add_polygon(sketch14, [(-14.3749, 10.0045), (-14.3749, 9.1155), (-9.6251, 9.1155), (-9.6251, 10.0045)])  # lines 0-3
sketch14.addConstraint(Sketcher.Constraint("Vertical", 0))
sketch14.addConstraint(Sketcher.Constraint("Horizontal", 1))
sketch14.addConstraint(Sketcher.Constraint("Vertical", 2))
sketch14.addConstraint(Sketcher.Constraint("Horizontal", 3))
sketch14.addConstraint(Sketcher.Constraint("DistanceY", 0, 2, 0, 1, Q("0.889 mm")))
sketch14.addConstraint(Sketcher.Constraint("DistanceX", 1, 1, 1, 2, Q("4.7498 mm")))
sketch14.addConstraint(Sketcher.Constraint("DistanceX", 0, 2, -1, 1, Q("14.3749 mm")))
sketch14.addConstraint(Sketcher.Constraint("DistanceY", -1, 1, 0, 2, Q("9.1155 mm")))
pad14 = body12.newObject("PartDesign::Pad", "Pad013")
pad14.Profile = sketch14
pad14.setExpression("Length", "Params.pad14_length")
body13 = doc.addObject("PartDesign::Body", "Body012")
body13.AllowCompound = True

# Sketch on XZ plane
sketch15 = body13.newObject("Sketcher::SketchObject", "Sketch014")
sketch15.AttachmentSupport = (doc.getObject("XZ_Plane012"), [""])
sketch15.MapMode = "FlatFace"
sketch15.AttachmentOffset = App.Placement(V(0, 0, -31.0045), App.Rotation())
add_polygon(sketch15, [(-12.5749, 31.8), (-14.8749, 29.5), (-14.8749, 32.8), (-9.1251, 32.8), (-9.1251, 29.5), (-11.4251, 31.8)])  # lines 0-5
sketch15.addGeometry(Part.LineSegment(V(-11, 28.8, 0), V(-11, 26.8, 0)), False)  # 6
sketch15.addGeometry(Part.ArcOfCircle(Part.Circle(V(-12, 26.8, 0), V(0, 0, 1), 1), math.radians(180), math.radians(360)), False)  # 7
sketch15.addGeometry(Part.LineSegment(V(-13, 26.8, 0), V(-13, 28.8, 0)), False)  # 8
sketch15.addGeometry(Part.ArcOfCircle(Part.Circle(V(-12, 28.8, 0), V(0, 0, 1), 1), math.radians(0), math.radians(180)), False)  # 9
add_polygon(sketch15, [(-2.8749, 29.5), (-2.8749, 32.8), (2.8749, 32.8), (2.8749, 29.5), (0.5749, 31.8), (-0.5749, 31.8)])  # lines 10-15
sketch15.addGeometry(Part.LineSegment(V(1, 28.8, 0), V(1, 26.8, 0)), False)  # 16
sketch15.addGeometry(Part.ArcOfCircle(Part.Circle(V(0, 26.8, 0), V(0, 0, 1), 1), math.radians(180), math.radians(360)), False)  # 17
sketch15.addGeometry(Part.LineSegment(V(-1, 26.8, 0), V(-1, 28.8, 0)), False)  # 18
sketch15.addGeometry(Part.ArcOfCircle(Part.Circle(V(0, 28.8, 0), V(0, 0, 1), 1), math.radians(0), math.radians(180)), False)  # 19
add_polygon(sketch15, [(9.1251, 29.5), (9.1251, 32.8), (14.8749, 32.8), (14.8749, 29.5), (12.5749, 31.8), (11.4251, 31.8)])  # lines 20-25
sketch15.addGeometry(Part.LineSegment(V(13, 28.8, 0), V(13, 26.8, 0)), False)  # 26
sketch15.addGeometry(Part.ArcOfCircle(Part.Circle(V(12, 26.8, 0), V(0, 0, 1), 1), math.radians(180), math.radians(360)), False)  # 27
sketch15.addGeometry(Part.LineSegment(V(11, 26.8, 0), V(11, 28.8, 0)), False)  # 28
sketch15.addGeometry(Part.ArcOfCircle(Part.Circle(V(12, 28.8, 0), V(0, 0, 1), 1), math.radians(0), math.radians(180)), False)  # 29
sketch15.addConstraint(Sketcher.Constraint("Tangent", 6, 2, 7, 2))
sketch15.addConstraint(Sketcher.Constraint("Tangent", 7, 1, 8, 1))
sketch15.addConstraint(Sketcher.Constraint("Tangent", 8, 2, 9, 2))
sketch15.addConstraint(Sketcher.Constraint("Tangent", 9, 1, 6, 1))
sketch15.addConstraint(Sketcher.Constraint("Tangent", 16, 2, 17, 2))
sketch15.addConstraint(Sketcher.Constraint("Tangent", 17, 1, 18, 1))
sketch15.addConstraint(Sketcher.Constraint("Tangent", 18, 2, 19, 2))
sketch15.addConstraint(Sketcher.Constraint("Tangent", 19, 1, 16, 1))
sketch15.addConstraint(Sketcher.Constraint("Tangent", 26, 2, 27, 2))
sketch15.addConstraint(Sketcher.Constraint("Tangent", 27, 1, 28, 1))
sketch15.addConstraint(Sketcher.Constraint("Tangent", 28, 2, 29, 2))
sketch15.addConstraint(Sketcher.Constraint("Tangent", 29, 1, 26, 1))
sketch15.addConstraint(Sketcher.Constraint("Vertical", 1))
sketch15.addConstraint(Sketcher.Constraint("Horizontal", 2))
sketch15.addConstraint(Sketcher.Constraint("Vertical", 3))
sketch15.addConstraint(Sketcher.Constraint("Horizontal", 5))
sketch15.addConstraint(Sketcher.Constraint("Vertical", 6))
sketch15.addConstraint(Sketcher.Constraint("Vertical", 8))
sketch15.addConstraint(Sketcher.Constraint("Vertical", 10))
sketch15.addConstraint(Sketcher.Constraint("Horizontal", 11))
sketch15.addConstraint(Sketcher.Constraint("Vertical", 12))
sketch15.addConstraint(Sketcher.Constraint("Horizontal", 14))
sketch15.addConstraint(Sketcher.Constraint("Vertical", 16))
sketch15.addConstraint(Sketcher.Constraint("Vertical", 18))
sketch15.addConstraint(Sketcher.Constraint("Vertical", 20))
sketch15.addConstraint(Sketcher.Constraint("Horizontal", 21))
sketch15.addConstraint(Sketcher.Constraint("Vertical", 22))
sketch15.addConstraint(Sketcher.Constraint("Horizontal", 24))
sketch15.addConstraint(Sketcher.Constraint("Vertical", 26))
sketch15.addConstraint(Sketcher.Constraint("Vertical", 28))
sketch15.addConstraint(Sketcher.Constraint("Equal", 9, 17))
sketch15.addConstraint(Sketcher.Constraint("Equal", 19, 27))
sketch15.addConstraint(Sketcher.Constraint("Symmetric", 7, 3, 27, 3, -2))
sketch15.addConstraint(Sketcher.Constraint("Symmetric", 12, 2, 15, 2, -2))
sketch15.addConstraint(Sketcher.Constraint("Symmetric", 2, 2, 20, 2, -2))
sketch15.addConstraint(Sketcher.Constraint("Symmetric", 0, 2, 22, 2, -2))
sketch15.addConstraint(Sketcher.Constraint("Symmetric", 5, 2, 23, 2, -2))
sketch15.addConstraint(Sketcher.Constraint("PointOnObject", 17, 3, -2))
sketch15.addConstraint(Sketcher.Constraint("Perpendicular", 0, 4))
sketch15.addConstraint(Sketcher.Constraint("Parallel", 4, 13))
sketch15.addConstraint(Sketcher.Constraint("Perpendicular", 13, 15))
sketch15.addConstraint(Sketcher.Constraint("Perpendicular", 15, 23))
sketch15.addConstraint(Sketcher.Constraint("Perpendicular", 23, 25))
sketch15.addConstraint(Sketcher.Constraint("Horizontal", 7, 3, 17, 3))
sketch15.addConstraint(Sketcher.Constraint("Horizontal", 9, 3, 19, 3))
sketch15.addConstraint(Sketcher.Constraint("Horizontal", 19, 3, 29, 3))
sketch15.addConstraint(Sketcher.Constraint("Horizontal", 0, 2, 3, 2))
sketch15.addConstraint(Sketcher.Constraint("Horizontal", 2, 2, 10, 2))
sketch15.addConstraint(Sketcher.Constraint("Horizontal", 3, 2, 12, 2))
sketch15.addConstraint(Sketcher.Constraint("Horizontal", 5, 2, 13, 2))
sketch15.addConstraint(Sketcher.Constraint("Horizontal", 22, 2, 25, 2))
sketch15.addConstraint(Sketcher.Constraint("Equal", 2, 11))
sketch15.addConstraint(Sketcher.Constraint("Radius", 7, Q("1 mm")))
sketch15.addConstraint(Sketcher.Constraint("DistanceY", 6, 2, 6, 1, Q("2 mm")))
sketch15.addConstraint(Sketcher.Constraint("DistanceY", 1, 1, 1, 2, Q("3.3 mm")))
sketch15.addConstraint(Sketcher.Constraint("DistanceX", 7, 3, -1, 1, Q("12 mm")))
sketch15.addConstraint(Sketcher.Constraint("DistanceY", 9, 3, 1, 2, Q("4 mm")))
sketch15.addConstraint(Sketcher.Constraint("DistanceY", 4, 2, 2, 2, Q("1 mm")))
sketch15.addConstraint(Sketcher.Constraint("DistanceX", 11, 2, 21, 2, Q("12 mm")))
sketch15.addConstraint(Sketcher.Constraint("DistanceY", -1, 1, 7, 3, Q("26.8 mm")))
sketch15.addConstraint(Sketcher.Constraint("DistanceX", 2, 1, 2, 2, Q("5.7498 mm")))
sketch15.setExpression("Constraints[70]", "Params.sketch15_radius")
sketch15.setExpression("Constraints[71]", "Params.sketch15_height")
sketch15.setExpression("Constraints[72]", "Params.sketch15_height2")
pad15 = body13.newObject("PartDesign::Pad", "Pad014")
pad15.Profile = sketch15
pad15.setExpression("Length", "Params.pad15_length")
doc.recompute()

body14 = doc.addObject("PartDesign::Body", "Body013")
body14.BaseFeature = body13
boolean = body2.newObject("PartDesign::Boolean", "Boolean")
boolean.Type = "Cut"
boolean.addObjects([body14])
doc.recompute()

body15 = doc.addObject("PartDesign::Body", "Body014")
body15.BaseFeature = body13
boolean2 = body3.newObject("PartDesign::Boolean", "Boolean001")
boolean2.Type = "Cut"
boolean2.addObjects([body15])
doc.recompute()

body16 = doc.addObject("PartDesign::Body", "Body015")
body16.BaseFeature = body13
boolean3 = body4.newObject("PartDesign::Boolean", "Boolean002")
boolean3.Type = "Cut"
boolean3.addObjects([body16])
doc.recompute()

body17 = doc.addObject("PartDesign::Body", "Body016")
body17.BaseFeature = body13
boolean4 = body5.newObject("PartDesign::Boolean", "Boolean003")
boolean4.Type = "Cut"
boolean4.addObjects([body17])
doc.recompute()

body18 = doc.addObject("PartDesign::Body", "Body017")
body18.BaseFeature = body13
boolean5 = body6.newObject("PartDesign::Boolean", "Boolean004")
boolean5.Type = "Cut"
boolean5.addObjects([body18])
doc.recompute()

body19 = doc.addObject("PartDesign::Body", "Body018")
body19.BaseFeature = body13
boolean6 = body7.newObject("PartDesign::Boolean", "Boolean005")
boolean6.Type = "Cut"
boolean6.addObjects([body19])
doc.recompute()

body20 = doc.addObject("PartDesign::Body", "Body019")
body20.BaseFeature = body13
boolean7 = body8.newObject("PartDesign::Boolean", "Boolean006")
boolean7.Type = "Cut"
boolean7.addObjects([body20])
doc.recompute()

body21 = doc.addObject("PartDesign::Body", "Body020")
body21.BaseFeature = body13
boolean8 = body9.newObject("PartDesign::Boolean", "Boolean007")
boolean8.Type = "Cut"
boolean8.addObjects([body21])
doc.recompute()

body22 = doc.addObject("PartDesign::Body", "Body021")
body22.BaseFeature = body13
boolean9 = body10.newObject("PartDesign::Boolean", "Boolean008")
boolean9.Type = "Cut"
boolean9.addObjects([body22])
doc.recompute()

body23 = doc.addObject("PartDesign::Body", "Body022")
body23.BaseFeature = body13
boolean10 = body11.newObject("PartDesign::Boolean", "Boolean009")
boolean10.Type = "Cut"
boolean10.addObjects([body23])
doc.recompute()

boolean11 = body12.newObject("PartDesign::Boolean", "Boolean010")
boolean11.Type = "Cut"
boolean11.addObjects([body13])

doc.recompute()
